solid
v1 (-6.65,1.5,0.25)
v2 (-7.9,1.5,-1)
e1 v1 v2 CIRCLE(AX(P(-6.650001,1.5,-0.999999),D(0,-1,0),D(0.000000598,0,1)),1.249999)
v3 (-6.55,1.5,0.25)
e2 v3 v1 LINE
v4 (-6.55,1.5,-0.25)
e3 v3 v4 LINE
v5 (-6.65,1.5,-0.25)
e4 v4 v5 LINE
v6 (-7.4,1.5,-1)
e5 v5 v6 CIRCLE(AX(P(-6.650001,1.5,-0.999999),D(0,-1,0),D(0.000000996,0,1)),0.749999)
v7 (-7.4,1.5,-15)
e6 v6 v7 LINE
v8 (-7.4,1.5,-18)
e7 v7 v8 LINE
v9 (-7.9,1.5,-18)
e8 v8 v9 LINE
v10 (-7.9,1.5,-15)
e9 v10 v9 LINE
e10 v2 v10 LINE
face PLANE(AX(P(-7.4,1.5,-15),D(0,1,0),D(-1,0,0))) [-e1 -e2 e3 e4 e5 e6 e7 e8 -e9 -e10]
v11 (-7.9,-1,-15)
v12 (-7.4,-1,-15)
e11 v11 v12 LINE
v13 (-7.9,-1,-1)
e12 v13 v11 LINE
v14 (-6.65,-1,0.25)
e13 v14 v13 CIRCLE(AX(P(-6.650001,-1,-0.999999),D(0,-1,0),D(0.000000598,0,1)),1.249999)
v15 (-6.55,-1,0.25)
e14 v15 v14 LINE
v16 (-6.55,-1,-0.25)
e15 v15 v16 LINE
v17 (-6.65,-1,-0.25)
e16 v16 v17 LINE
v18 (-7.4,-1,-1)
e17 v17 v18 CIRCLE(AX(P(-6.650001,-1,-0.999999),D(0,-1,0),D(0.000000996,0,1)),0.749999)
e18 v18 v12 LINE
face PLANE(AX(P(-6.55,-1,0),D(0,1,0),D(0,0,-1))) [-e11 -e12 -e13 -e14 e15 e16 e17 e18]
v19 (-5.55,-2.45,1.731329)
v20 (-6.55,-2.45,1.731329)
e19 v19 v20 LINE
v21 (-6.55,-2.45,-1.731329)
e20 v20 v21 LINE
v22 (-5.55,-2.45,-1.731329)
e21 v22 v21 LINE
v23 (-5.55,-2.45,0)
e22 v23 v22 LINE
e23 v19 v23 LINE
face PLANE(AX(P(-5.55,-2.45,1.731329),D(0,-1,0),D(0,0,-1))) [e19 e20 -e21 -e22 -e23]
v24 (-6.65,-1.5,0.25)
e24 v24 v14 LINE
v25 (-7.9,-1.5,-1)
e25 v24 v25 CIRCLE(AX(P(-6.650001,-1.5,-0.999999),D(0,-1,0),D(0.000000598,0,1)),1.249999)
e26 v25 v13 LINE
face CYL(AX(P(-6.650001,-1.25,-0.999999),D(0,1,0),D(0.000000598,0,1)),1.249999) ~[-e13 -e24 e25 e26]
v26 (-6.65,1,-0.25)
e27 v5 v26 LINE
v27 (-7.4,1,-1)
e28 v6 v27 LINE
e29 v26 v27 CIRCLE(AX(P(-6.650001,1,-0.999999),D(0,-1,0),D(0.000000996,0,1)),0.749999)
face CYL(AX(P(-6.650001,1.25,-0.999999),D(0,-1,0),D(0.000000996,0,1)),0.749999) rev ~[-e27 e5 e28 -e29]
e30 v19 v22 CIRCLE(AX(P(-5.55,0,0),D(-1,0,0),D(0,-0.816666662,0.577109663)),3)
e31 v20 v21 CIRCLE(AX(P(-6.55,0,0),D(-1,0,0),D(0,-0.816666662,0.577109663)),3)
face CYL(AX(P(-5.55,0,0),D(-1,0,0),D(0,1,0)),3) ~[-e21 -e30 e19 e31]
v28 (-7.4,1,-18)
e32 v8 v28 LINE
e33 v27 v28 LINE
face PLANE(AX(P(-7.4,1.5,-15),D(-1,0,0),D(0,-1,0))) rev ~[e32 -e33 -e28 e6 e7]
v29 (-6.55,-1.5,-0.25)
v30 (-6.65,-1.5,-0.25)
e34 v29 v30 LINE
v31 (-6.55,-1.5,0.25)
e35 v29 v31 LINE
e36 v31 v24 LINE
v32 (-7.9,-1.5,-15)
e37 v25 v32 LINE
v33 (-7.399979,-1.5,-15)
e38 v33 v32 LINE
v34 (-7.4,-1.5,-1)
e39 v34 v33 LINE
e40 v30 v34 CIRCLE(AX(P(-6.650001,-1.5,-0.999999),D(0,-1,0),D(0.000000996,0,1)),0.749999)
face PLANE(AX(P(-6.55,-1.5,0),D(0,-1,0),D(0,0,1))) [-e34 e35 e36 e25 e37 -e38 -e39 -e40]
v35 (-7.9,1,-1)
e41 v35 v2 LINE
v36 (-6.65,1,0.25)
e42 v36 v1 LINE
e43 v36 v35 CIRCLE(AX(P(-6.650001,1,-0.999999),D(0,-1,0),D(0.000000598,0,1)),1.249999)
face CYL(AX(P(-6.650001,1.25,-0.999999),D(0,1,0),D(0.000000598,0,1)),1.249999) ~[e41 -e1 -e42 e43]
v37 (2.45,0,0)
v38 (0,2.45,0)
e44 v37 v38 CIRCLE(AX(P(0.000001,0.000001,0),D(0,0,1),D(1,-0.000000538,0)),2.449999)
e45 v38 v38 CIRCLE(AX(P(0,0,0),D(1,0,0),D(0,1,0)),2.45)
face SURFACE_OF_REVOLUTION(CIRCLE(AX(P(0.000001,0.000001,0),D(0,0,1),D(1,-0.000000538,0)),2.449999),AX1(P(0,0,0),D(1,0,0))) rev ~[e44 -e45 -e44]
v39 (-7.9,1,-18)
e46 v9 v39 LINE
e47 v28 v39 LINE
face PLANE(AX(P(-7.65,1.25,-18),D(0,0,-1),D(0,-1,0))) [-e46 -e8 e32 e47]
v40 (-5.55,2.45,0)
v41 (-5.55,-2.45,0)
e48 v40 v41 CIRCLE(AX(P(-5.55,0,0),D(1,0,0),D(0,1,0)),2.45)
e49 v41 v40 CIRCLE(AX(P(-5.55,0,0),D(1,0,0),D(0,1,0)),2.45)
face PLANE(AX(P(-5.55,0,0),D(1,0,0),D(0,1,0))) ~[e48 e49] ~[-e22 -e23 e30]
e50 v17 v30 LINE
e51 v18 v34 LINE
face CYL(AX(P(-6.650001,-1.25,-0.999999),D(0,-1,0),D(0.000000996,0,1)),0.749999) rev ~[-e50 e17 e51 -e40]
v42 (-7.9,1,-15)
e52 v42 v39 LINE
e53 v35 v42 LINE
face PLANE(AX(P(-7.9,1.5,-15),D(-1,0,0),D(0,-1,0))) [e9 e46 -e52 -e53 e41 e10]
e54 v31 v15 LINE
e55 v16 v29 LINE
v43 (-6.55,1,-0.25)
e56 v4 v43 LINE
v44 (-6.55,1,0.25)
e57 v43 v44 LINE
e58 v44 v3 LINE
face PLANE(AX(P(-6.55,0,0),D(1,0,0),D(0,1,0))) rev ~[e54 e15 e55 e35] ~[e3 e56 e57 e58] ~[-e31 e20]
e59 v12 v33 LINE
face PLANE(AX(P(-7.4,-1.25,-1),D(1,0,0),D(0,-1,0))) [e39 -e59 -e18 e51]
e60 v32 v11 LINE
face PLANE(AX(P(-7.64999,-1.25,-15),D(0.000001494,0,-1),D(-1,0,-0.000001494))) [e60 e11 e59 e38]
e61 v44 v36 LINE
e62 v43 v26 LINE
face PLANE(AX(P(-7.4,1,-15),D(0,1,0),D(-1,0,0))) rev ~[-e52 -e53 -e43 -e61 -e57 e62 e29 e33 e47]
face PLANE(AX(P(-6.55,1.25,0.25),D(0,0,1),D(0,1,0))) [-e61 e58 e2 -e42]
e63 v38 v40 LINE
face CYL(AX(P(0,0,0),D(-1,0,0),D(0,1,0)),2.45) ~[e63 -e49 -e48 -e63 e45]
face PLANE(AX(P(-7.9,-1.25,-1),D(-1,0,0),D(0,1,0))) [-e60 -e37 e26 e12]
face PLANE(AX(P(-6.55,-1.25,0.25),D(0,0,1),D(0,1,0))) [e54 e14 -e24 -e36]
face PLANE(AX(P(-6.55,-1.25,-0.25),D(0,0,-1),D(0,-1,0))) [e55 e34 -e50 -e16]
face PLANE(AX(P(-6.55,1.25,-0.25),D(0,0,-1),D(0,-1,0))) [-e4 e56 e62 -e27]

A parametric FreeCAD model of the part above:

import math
import FreeCAD as App
import Part
import Sketcher
Q = App.Units.Quantity

doc = App.newDocument("Part")
params = doc.addObject("Spreadsheet::Sheet", "Params")
for row, (alias, value) in enumerate([
    ("sketch1_width", "1 mm"),
    ("sketch1_width2", "9 mm"),
    ("sketch1_height", "3 mm"),
    ("sketch1_radius", "2.449999 mm"),
    ("revolution_angle", "360 deg"),
    ("sketch2_width", "0.5 mm"),
    ("sketch3_radius", "0.999999 mm"),
    ("sketch3_height", "14 mm"),
    ("sketch3_width", "0.1 mm"),
    ("sketch4_width", "0.5 mm"),
    ("sketch5_radius", "0.999999 mm"),
    ("sketch5_height", "14 mm"),
    ("sketch5_width", "0.1 mm"),
    ("sketch6_width", "0.5 mm"),
    ("pad1_length", "3 mm"),
    ("pocket1_length", "5 mm"),
], start=1):
    params.set(f"A{row}", alias)
    params.set(f"B{row}", "=" + value)
    params.setAlias(f"B{row}", alias)

body = doc.addObject("PartDesign::Body", "Body")

sketch1 = doc.addObject("Sketcher::SketchObject", "Sketch")
body.addObject(sketch1)
sketch1.AttachmentSupport = (doc.XY_Plane, [""])
sketch1.MapMode = "FlatFace"
sketch1.addGeometry(Part.LineSegment(App.Vector(0, 2.5, 0), App.Vector(-5.5, 2.5, 0)), False)
sketch1.addGeometry(Part.LineSegment(App.Vector(-5.5, 2.5, 0), App.Vector(-5.5, 3, 0)), False)
sketch1.addGeometry(Part.LineSegment(App.Vector(-5.5, 3, 0), App.Vector(-6.5, 3, 0)), False)
sketch1.addGeometry(Part.LineSegment(App.Vector(-6.5, 3, 0), App.Vector(-6.5, 0, 0)), False)
sketch1.addGeometry(Part.LineSegment(App.Vector(-6.5, 0, 0), App.Vector(2.5, 0, 0)), False)
sketch1.addGeometry(Part.ArcOfCircle(Part.Circle(App.Vector(0, 0, 0), App.Vector(0, 0, 1), 2.4), math.radians(0), math.radians(90)), False)
sketch1.addConstraint(Sketcher.Constraint("Coincident", 0, 2, 1, 1))
sketch1.addConstraint(Sketcher.Constraint("Coincident", 1, 2, 2, 1))
sketch1.addConstraint(Sketcher.Constraint("Coincident", 2, 2, 3, 1))
sketch1.addConstraint(Sketcher.Constraint("Coincident", 3, 2, 4, 1))
sketch1.addConstraint(Sketcher.Constraint("Coincident", 4, 2, 5, 1))
sketch1.addConstraint(Sketcher.Constraint("Tangent", 5, 2, 0, 1))
sketch1.addConstraint(Sketcher.Constraint("Horizontal", 0))
sketch1.addConstraint(Sketcher.Constraint("Vertical", 1))
sketch1.addConstraint(Sketcher.Constraint("Horizontal", 2))
sketch1.addConstraint(Sketcher.Constraint("Vertical", 3))
sketch1.addConstraint(Sketcher.Constraint("Horizontal", 4))
sketch1.addConstraint(Sketcher.Constraint("Coincident", 5, 3, -1, 1))
sketch1.addConstraint(Sketcher.Constraint("PointOnObject", 3, 2, -1))
sketch1.addConstraint(Sketcher.Constraint("DistanceX", 2, 2, 2, 1, Q("1 mm")))
sketch1.addConstraint(Sketcher.Constraint("DistanceX", 4, 1, 4, 2, Q("9 mm")))
sketch1.addConstraint(Sketcher.Constraint("DistanceY", 3, 2, 3, 1, Q("3 mm")))
sketch1.addConstraint(Sketcher.Constraint("Radius", 5, Q("2.449999 mm")))
sketch1.setExpression("Constraints[13]", "Params.sketch1_width")
sketch1.setExpression("Constraints[14]", "Params.sketch1_width2")
sketch1.setExpression("Constraints[15]", "Params.sketch1_height")
sketch1.setExpression("Constraints[16]", "Params.sketch1_radius")
revolution = doc.addObject("PartDesign::Revolution", "Revolution")
body.addObject(revolution)
revolution.Profile = sketch1
revolution.ReferenceAxis = (sketch1, ["H_Axis"])
revolution.setExpression("Angle", "Params.revolution_angle")

sketch2 = doc.addObject("Sketcher::SketchObject", "Sketch001")
body.addObject(sketch2)
sketch2.AttachmentSupport = (doc.YZ_Plane, [""])
sketch2.MapMode = "FlatFace"
sketch2.AttachmentOffset = App.Placement(App.Vector(0, 0, -6.55), App.Rotation())
sketch2.addGeometry(Part.LineSegment(App.Vector(-1, 0.2, 0), App.Vector(-1, -0.2, 0)), False)
sketch2.addGeometry(Part.LineSegment(App.Vector(-1, -0.2, 0), App.Vector(-1.5, -0.2, 0)), False)
sketch2.addGeometry(Part.LineSegment(App.Vector(-1.5, -0.2, 0), App.Vector(-1.5, 0.2, 0)), False)
sketch2.addGeometry(Part.LineSegment(App.Vector(-1.5, 0.2, 0), App.Vector(-1, 0.2, 0)), False)
sketch2.addConstraint(Sketcher.Constraint("Coincident", 0, 2, 1, 1))
sketch2.addConstraint(Sketcher.Constraint("Coincident", 1, 2, 2, 1))
sketch2.addConstraint(Sketcher.Constraint("Coincident", 2, 2, 3, 1))
sketch2.addConstraint(Sketcher.Constraint("Coincident", 3, 2, 0, 1))
sketch2.addConstraint(Sketcher.Constraint("Vertical", 0))
sketch2.addConstraint(Sketcher.Constraint("Horizontal", 1))
sketch2.addConstraint(Sketcher.Constraint("Vertical", 2))
sketch2.addConstraint(Sketcher.Constraint("Horizontal", 3))
sketch2.addConstraint(Sketcher.Constraint("Equal", 3, 0))
sketch2.addConstraint(Sketcher.Constraint("DistanceX", 1, 2, 1, 1, Q("0.5 mm")))
sketch2.addConstraint(Sketcher.Constraint("DistanceX", 0, 2, -1, 1, Q("1 mm")))
sketch2.addConstraint(Sketcher.Constraint("DistanceY", 0, 2, -1, 1, Q("0.25 mm")))
sketch2.setExpression("Constraints[9]", "Params.sketch2_width")

sketch3 = doc.addObject("Sketcher::SketchObject", "Sketch002")
body.addObject(sketch3)
sketch3.AttachmentSupport = (doc.XZ_Plane, [""])
sketch3.MapMode = "FlatFace"
sketch3.addGeometry(Part.LineSegment(App.Vector(-6.55, 0, 0), App.Vector(-6.65, 0, 0)), False)
sketch3.addGeometry(Part.ArcOfCircle(Part.Circle(App.Vector(-6.65, -1, 0), App.Vector(0, 0, 1), 1), math.radians(90), math.radians(180)), False)
sketch3.addGeometry(Part.LineSegment(App.Vector(-7.65, -1, 0), App.Vector(-7.65, -15, 0)), False)
sketch3.addConstraint(Sketcher.Constraint("Tangent", 0, 2, 1, 1))
sketch3.addConstraint(Sketcher.Constraint("Tangent", 1, 2, 2, 1))
sketch3.addConstraint(Sketcher.Constraint("Horizontal", 0))
sketch3.addConstraint(Sketcher.Constraint("Vertical", 2))
sketch3.addConstraint(Sketcher.Constraint("PointOnObject", 0, 1, -1))
sketch3.addConstraint(Sketcher.Constraint("Radius", 1, Q("0.999999 mm")))
sketch3.addConstraint(Sketcher.Constraint("DistanceY", 2, 2, 2, 1, Q("14 mm")))
sketch3.addConstraint(Sketcher.Constraint("DistanceX", 0, 2, 0, 1, Q("0.1 mm")))
sketch3.addConstraint(Sketcher.Constraint("DistanceX", 1, 3, -1, 1, Q("6.650001 mm")))
sketch3.setExpression("Constraints[5]", "Params.sketch3_radius")
sketch3.setExpression("Constraints[6]", "Params.sketch3_height")
sketch3.setExpression("Constraints[7]", "Params.sketch3_width")
doc.recompute()

additivepipe = doc.addObject("PartDesign::AdditivePipe", "AdditivePipe")
body.addObject(additivepipe)
additivepipe.Profile = sketch2
additivepipe.Spine = (sketch3, ["Edge1", "Edge2", "Edge3"])

sketch4 = doc.addObject("Sketcher::SketchObject", "Sketch003")
body.addObject(sketch4)
sketch4.AttachmentSupport = (doc.YZ_Plane, [""])
sketch4.MapMode = "FlatFace"
sketch4.AttachmentOffset = App.Placement(App.Vector(0, 0, -6.55), App.Rotation())
sketch4.addGeometry(Part.LineSegment(App.Vector(1.5, 0.2, 0), App.Vector(1.5, -0.2, 0)), False)
sketch4.addGeometry(Part.LineSegment(App.Vector(1.5, -0.2, 0), App.Vector(1, -0.2, 0)), False)
sketch4.addGeometry(Part.LineSegment(App.Vector(1, -0.2, 0), App.Vector(1, 0.2, 0)), False)
sketch4.addGeometry(Part.LineSegment(App.Vector(1, 0.2, 0), App.Vector(1.5, 0.2, 0)), False)
sketch4.addConstraint(Sketcher.Constraint("Coincident", 0, 2, 1, 1))
sketch4.addConstraint(Sketcher.Constraint("Coincident", 1, 2, 2, 1))
sketch4.addConstraint(Sketcher.Constraint("Coincident", 2, 2, 3, 1))
sketch4.addConstraint(Sketcher.Constraint("Coincident", 3, 2, 0, 1))
sketch4.addConstraint(Sketcher.Constraint("Vertical", 0))
sketch4.addConstraint(Sketcher.Constraint("Horizontal", 1))
sketch4.addConstraint(Sketcher.Constraint("Vertical", 2))
sketch4.addConstraint(Sketcher.Constraint("Horizontal", 3))
sketch4.addConstraint(Sketcher.Constraint("Equal", 3, 0))
sketch4.addConstraint(Sketcher.Constraint("DistanceX", 1, 2, 1, 1, Q("0.5 mm")))
sketch4.addConstraint(Sketcher.Constraint("DistanceX", -1, 1, 1, 2, Q("1 mm")))
sketch4.addConstraint(Sketcher.Constraint("DistanceY", 0, 2, -1, 1, Q("0.25 mm")))
sketch4.setExpression("Constraints[9]", "Params.sketch4_width")

sketch5 = doc.addObject("Sketcher::SketchObject", "Sketch004")
body.addObject(sketch5)
sketch5.AttachmentSupport = (doc.XZ_Plane, [""])
sketch5.MapMode = "FlatFace"
sketch5.addGeometry(Part.LineSegment(App.Vector(-6.55, 0, 0), App.Vector(-6.65, 0, 0)), False)
sketch5.addGeometry(Part.ArcOfCircle(Part.Circle(App.Vector(-6.65, -1, 0), App.Vector(0, 0, 1), 1), math.radians(90), math.radians(180)), False)
sketch5.addGeometry(Part.LineSegment(App.Vector(-7.65, -1, 0), App.Vector(-7.65, -15, 0)), False)
sketch5.addConstraint(Sketcher.Constraint("Tangent", 0, 2, 1, 1))
sketch5.addConstraint(Sketcher.Constraint("Tangent", 1, 2, 2, 1))
sketch5.addConstraint(Sketcher.Constraint("Horizontal", 0))
sketch5.addConstraint(Sketcher.Constraint("Vertical", 2))
sketch5.addConstraint(Sketcher.Constraint("PointOnObject", 0, 1, -1))
sketch5.addConstraint(Sketcher.Constraint("Radius", 1, Q("0.999999 mm")))
sketch5.addConstraint(Sketcher.Constraint("DistanceY", 2, 2, 2, 1, Q("14 mm")))
sketch5.addConstraint(Sketcher.Constraint("DistanceX", 0, 2, 0, 1, Q("0.1 mm")))
sketch5.addConstraint(Sketcher.Constraint("DistanceX", 1, 3, -1, 1, Q("6.650001 mm")))
sketch5.setExpression("Constraints[5]", "Params.sketch5_radius")
sketch5.setExpression("Constraints[6]", "Params.sketch5_height")
sketch5.setExpression("Constraints[7]", "Params.sketch5_width")
doc.recompute()

additivepipe2 = doc.addObject("PartDesign::AdditivePipe", "AdditivePipe001")
body.addObject(additivepipe2)
additivepipe2.Profile = sketch4
additivepipe2.Spine = (sketch5, ["Edge1", "Edge2", "Edge3"])

sketch6 = doc.addObject("Sketcher::SketchObject", "Sketch005")
body.addObject(sketch6)
sketch6.AttachmentSupport = (doc.XY_Plane, [""])
sketch6.MapMode = "FlatFace"
sketch6.AttachmentOffset = App.Placement(App.Vector(0, 0, -15), App.Rotation())
sketch6.addGeometry(Part.LineSegment(App.Vector(-7.9, 1.5, 0), App.Vector(-7.4, 1.5, 0)), False)
sketch6.addGeometry(Part.LineSegment(App.Vector(-7.4, 1.5, 0), App.Vector(-7.4, 1, 0)), False)
sketch6.addGeometry(Part.LineSegment(App.Vector(-7.4, 1, 0), App.Vector(-7.9, 1, 0)), False)
sketch6.addGeometry(Part.LineSegment(App.Vector(-7.9, 1, 0), App.Vector(-7.9, 1.5, 0)), False)
sketch6.addConstraint(Sketcher.Constraint("Coincident", 0, 2, 1, 1))
sketch6.addConstraint(Sketcher.Constraint("Coincident", 1, 2, 2, 1))
sketch6.addConstraint(Sketcher.Constraint("Coincident", 2, 2, 3, 1))
sketch6.addConstraint(Sketcher.Constraint("Coincident", 3, 2, 0, 1))
sketch6.addConstraint(Sketcher.Constraint("Horizontal", 0))
sketch6.addConstraint(Sketcher.Constraint("Vertical", 1))
sketch6.addConstraint(Sketcher.Constraint("Horizontal", 2))
sketch6.addConstraint(Sketcher.Constraint("Vertical", 3))
sketch6.addConstraint(Sketcher.Constraint("Equal", 2, 1))
sketch6.addConstraint(Sketcher.Constraint("DistanceX", 0, 1, 0, 2, Q("0.5 mm")))
sketch6.addConstraint(Sketcher.Constraint("DistanceY", -1, 1, 1, 2, Q("1 mm")))
sketch6.addConstraint(Sketcher.Constraint("DistanceX", 0, 2, -1, 1, Q("7.4 mm")))
sketch6.setExpression("Constraints[9]", "Params.sketch6_width")
pad1 = doc.addObject("PartDesign::Pad", "Pad")
body.addObject(pad1)
pad1.Profile = sketch6
pad1.setExpression("Length", "Params.pad1_length")
pad1.Reversed = True

sketch7 = doc.addObject("Sketcher::SketchObject", "Sketch006")
body.addObject(sketch7)
sketch7.AttachmentSupport = (doc.YZ_Plane, [""])
sketch7.MapMode = "FlatFace"
sketch7.AttachmentOffset = App.Placement(App.Vector(0, 0, -5.55), App.Rotation())
sketch7.addGeometry(Part.LineSegment(App.Vector(-2.5, -1.7, 0), App.Vector(-2.5, 1.7, 0)), False)
sketch7.addGeometry(Part.ArcOfCircle(Part.Circle(App.Vector(0, 0, 0), App.Vector(0, 0, 1), 3), math.radians(145), math.radians(215)), False)
sketch7.addConstraint(Sketcher.Constraint("Coincident", 0, 1, 1, 2))
sketch7.addConstraint(Sketcher.Constraint("Coincident", 1, 1, 0, 2))
sketch7.addConstraint(Sketcher.Constraint("Vertical", 0))
sketch7.addConstraint(Sketcher.Constraint("PointOnObject", 1, 3, -1))
sketch7.addConstraint(Sketcher.Constraint("DistanceX", 0, 1, -1, 1, Q("2.45 mm")))
sketch7.addConstraint(Sketcher.Constraint("Radius", 1, Q("2.999991 mm")))
sketch7.addConstraint(Sketcher.Constraint("DistanceY", 0, 1, 0, 2, Q("3.462658 mm")))
pocket1 = doc.addObject("PartDesign::Pocket", "Pocket")
body.addObject(pocket1)
pocket1.Profile = sketch7
pocket1.setExpression("Length", "Params.pocket1_length")

doc.recompute()
